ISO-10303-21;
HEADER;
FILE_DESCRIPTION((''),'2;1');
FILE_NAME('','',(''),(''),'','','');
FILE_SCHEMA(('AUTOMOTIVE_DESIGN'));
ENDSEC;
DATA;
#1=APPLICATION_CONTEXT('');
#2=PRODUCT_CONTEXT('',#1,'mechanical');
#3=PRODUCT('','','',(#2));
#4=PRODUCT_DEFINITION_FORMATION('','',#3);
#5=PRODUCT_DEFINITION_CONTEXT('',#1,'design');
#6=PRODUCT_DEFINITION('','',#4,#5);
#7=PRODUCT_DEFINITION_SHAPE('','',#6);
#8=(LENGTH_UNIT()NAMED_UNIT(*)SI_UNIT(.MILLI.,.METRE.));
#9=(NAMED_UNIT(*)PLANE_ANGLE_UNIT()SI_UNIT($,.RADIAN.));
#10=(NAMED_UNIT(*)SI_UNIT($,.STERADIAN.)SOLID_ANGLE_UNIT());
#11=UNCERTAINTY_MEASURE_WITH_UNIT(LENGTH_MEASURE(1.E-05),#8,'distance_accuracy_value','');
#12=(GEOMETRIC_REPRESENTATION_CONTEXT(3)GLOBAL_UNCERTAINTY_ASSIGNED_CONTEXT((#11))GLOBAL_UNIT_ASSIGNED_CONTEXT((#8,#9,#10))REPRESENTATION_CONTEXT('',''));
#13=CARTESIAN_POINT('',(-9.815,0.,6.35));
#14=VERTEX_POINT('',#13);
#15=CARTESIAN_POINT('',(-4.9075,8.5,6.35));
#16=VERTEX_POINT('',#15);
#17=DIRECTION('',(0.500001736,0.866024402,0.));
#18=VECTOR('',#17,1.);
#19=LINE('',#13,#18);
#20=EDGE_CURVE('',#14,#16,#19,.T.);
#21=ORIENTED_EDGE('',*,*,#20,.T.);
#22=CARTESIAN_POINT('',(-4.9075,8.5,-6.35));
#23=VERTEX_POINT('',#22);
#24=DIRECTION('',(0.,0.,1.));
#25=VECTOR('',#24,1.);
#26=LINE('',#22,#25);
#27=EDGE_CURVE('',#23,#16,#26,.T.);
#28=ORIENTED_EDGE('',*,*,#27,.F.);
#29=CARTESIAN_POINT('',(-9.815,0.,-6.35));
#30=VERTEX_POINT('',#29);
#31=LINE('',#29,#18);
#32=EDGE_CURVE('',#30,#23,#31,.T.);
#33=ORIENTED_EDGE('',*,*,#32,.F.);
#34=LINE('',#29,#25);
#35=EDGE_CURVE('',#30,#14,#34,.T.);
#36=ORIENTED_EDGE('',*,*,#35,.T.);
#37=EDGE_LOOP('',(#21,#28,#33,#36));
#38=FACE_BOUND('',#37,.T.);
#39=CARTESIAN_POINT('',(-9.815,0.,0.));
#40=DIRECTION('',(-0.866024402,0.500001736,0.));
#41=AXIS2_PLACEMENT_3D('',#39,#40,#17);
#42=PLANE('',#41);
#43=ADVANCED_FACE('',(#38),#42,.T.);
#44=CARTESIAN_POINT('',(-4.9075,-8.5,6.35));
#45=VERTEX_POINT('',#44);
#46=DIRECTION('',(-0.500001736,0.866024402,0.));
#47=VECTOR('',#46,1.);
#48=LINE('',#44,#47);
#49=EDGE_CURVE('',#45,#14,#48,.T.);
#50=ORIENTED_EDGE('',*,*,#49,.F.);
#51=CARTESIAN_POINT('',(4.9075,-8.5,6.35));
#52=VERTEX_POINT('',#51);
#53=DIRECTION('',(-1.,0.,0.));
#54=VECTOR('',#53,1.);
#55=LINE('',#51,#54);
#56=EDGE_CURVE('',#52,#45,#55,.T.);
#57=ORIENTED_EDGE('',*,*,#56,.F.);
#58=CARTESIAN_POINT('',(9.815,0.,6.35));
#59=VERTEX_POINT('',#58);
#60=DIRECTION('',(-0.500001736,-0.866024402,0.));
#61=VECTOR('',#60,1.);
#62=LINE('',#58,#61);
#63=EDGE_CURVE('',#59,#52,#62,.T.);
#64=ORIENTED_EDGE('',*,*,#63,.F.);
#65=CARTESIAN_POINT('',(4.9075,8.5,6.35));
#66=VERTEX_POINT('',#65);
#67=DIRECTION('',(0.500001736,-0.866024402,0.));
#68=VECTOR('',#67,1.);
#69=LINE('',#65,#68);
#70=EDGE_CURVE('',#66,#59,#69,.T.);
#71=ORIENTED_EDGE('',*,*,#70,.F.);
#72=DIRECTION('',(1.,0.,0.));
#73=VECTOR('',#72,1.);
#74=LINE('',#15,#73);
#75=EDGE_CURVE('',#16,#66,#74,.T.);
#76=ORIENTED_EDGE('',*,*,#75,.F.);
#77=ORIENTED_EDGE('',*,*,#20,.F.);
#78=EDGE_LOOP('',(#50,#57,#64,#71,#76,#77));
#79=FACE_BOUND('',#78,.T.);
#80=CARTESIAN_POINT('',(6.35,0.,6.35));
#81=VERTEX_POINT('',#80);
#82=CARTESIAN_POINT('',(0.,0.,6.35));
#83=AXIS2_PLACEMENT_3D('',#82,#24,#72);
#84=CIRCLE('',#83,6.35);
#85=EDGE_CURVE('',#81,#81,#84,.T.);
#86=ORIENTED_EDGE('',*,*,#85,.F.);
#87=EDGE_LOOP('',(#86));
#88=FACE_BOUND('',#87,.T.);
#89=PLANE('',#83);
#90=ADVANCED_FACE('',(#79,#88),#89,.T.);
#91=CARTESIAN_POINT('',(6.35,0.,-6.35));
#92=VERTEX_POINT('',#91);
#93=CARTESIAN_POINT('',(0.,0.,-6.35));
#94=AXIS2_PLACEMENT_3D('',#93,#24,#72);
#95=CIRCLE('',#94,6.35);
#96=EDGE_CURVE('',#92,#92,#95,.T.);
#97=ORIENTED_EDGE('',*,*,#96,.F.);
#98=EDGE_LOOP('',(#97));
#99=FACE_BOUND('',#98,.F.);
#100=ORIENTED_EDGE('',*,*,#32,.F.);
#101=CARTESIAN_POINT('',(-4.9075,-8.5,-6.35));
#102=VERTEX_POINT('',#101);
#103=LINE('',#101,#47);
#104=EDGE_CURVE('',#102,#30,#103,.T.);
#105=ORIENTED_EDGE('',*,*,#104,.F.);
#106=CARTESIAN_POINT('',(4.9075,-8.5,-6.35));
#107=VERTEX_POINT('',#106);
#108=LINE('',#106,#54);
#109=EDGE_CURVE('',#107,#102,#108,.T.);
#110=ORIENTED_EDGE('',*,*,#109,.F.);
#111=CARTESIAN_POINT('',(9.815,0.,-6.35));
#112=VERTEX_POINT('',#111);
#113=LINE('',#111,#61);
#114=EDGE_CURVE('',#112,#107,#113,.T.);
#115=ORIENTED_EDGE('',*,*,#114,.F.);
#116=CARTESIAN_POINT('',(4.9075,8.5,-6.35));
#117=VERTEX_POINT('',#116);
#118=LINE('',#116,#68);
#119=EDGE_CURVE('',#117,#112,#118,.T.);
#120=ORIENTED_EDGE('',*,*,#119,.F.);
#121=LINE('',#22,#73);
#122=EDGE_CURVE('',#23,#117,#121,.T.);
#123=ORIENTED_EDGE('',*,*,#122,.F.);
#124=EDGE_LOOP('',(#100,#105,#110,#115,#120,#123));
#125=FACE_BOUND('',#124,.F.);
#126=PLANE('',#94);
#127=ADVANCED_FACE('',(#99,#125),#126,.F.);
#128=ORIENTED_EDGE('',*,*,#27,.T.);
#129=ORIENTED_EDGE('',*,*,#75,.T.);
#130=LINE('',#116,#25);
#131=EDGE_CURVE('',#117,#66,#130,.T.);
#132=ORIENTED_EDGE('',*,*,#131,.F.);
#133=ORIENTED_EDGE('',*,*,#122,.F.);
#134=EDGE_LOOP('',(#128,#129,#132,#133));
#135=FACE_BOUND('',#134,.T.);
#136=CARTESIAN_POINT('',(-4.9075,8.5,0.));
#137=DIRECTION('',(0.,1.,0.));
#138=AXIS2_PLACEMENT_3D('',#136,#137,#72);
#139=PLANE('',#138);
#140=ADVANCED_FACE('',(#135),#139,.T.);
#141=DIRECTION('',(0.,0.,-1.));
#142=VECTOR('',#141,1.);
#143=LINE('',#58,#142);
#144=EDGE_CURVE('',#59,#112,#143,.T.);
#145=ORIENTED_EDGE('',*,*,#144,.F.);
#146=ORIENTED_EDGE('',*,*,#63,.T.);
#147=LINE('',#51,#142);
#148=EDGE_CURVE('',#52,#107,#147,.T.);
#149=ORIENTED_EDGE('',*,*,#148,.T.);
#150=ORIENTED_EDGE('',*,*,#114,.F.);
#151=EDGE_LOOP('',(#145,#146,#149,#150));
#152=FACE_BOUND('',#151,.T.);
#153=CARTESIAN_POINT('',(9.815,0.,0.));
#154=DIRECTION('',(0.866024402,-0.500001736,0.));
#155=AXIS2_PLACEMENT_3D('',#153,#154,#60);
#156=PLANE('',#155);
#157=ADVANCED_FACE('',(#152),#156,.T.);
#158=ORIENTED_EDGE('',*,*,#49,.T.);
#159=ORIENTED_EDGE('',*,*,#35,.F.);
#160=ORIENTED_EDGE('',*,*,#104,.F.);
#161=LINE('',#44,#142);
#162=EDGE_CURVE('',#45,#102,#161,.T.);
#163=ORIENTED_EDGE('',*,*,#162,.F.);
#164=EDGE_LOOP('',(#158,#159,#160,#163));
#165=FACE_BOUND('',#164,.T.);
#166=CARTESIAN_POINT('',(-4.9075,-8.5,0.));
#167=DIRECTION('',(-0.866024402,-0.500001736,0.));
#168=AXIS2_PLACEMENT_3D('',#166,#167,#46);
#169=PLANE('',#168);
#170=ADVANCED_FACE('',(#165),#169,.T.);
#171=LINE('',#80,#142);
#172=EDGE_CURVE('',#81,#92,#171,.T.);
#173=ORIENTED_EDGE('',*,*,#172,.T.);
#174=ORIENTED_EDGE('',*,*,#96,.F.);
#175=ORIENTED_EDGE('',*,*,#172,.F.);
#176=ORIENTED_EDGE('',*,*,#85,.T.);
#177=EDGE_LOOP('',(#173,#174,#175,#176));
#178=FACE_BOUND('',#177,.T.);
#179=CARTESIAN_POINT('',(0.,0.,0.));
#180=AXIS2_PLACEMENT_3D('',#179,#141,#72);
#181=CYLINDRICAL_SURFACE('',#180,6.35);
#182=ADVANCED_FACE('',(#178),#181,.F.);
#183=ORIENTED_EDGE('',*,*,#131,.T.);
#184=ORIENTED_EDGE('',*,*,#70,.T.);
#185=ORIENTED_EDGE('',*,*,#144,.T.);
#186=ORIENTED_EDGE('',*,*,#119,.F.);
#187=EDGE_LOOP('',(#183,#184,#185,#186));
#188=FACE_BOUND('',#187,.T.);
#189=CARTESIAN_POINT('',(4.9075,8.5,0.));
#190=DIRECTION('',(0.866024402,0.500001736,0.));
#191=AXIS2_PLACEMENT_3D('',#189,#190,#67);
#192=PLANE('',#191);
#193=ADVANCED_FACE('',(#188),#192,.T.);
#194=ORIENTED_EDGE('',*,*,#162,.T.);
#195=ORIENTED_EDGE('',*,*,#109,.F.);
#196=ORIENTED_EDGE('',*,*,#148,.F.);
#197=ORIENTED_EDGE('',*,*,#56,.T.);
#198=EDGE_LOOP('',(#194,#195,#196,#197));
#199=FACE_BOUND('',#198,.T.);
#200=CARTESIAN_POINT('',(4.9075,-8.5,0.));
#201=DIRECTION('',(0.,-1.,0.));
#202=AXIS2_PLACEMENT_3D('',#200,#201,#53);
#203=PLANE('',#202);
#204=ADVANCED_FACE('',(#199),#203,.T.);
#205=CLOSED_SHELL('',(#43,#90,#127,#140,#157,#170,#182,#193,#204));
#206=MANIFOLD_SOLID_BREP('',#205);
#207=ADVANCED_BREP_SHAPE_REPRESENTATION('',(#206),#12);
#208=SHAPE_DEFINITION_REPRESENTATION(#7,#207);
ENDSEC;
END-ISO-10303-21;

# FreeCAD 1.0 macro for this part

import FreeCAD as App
import Part
import Sketcher

V = App.Vector
Q = App.Units.Quantity

doc = App.newDocument("Part")
body = doc.addObject("PartDesign::Body", "Body")

# Sketch on XY plane
sketch1 = body.newObject("Sketcher::SketchObject", "Sketch")
sketch1.AttachmentSupport = (doc.getObject("XY_Plane"), [""])
sketch1.MapMode = "FlatFace"
sketch1.addGeometry([
    Part.LineSegment(V(10, 0, 0), V(5, 8, 0)),  # 0
    Part.LineSegment(V(5, 8, 0), V(-5, 8, 0)),  # 1
    Part.LineSegment(V(-5, 8, 0), V(-10, 0, 0)),  # 2
    Part.LineSegment(V(-10, 0, 0), V(-5, -8, 0)),  # 3
    Part.LineSegment(V(-5, -8, 0), V(5, -8, 0)),  # 4
    Part.LineSegment(V(5, -8, 0), V(10, 0, 0)),  # 5
    Part.Circle(V(0, 0, 0), V(0, 0, 1), 6),  # 6
], False)
sketch1.addConstraint([
    Sketcher.Constraint("Coincident", 0, 2, 1, 1),
    Sketcher.Constraint("Coincident", 1, 2, 2, 1),
    Sketcher.Constraint("Coincident", 2, 2, 3, 1),
    Sketcher.Constraint("Coincident", 3, 2, 4, 1),
    Sketcher.Constraint("Coincident", 4, 2, 5, 1),
    Sketcher.Constraint("Coincident", 5, 2, 0, 1),
    Sketcher.Constraint("Horizontal", 1),
    Sketcher.Constraint("Horizontal", 4),
    Sketcher.Constraint("Coincident", 6, 3, -1, 1),
    Sketcher.Constraint("Symmetric", 0, 2, 3, 2, -1, 1),
    Sketcher.Constraint("Symmetric", 2, 2, 5, 2, -1, 1),
    Sketcher.Constraint("PointOnObject", 2, 2, -1),
    Sketcher.Constraint("Parallel", 2, 5),
    Sketcher.Constraint("Vertical", 1, 2, 3, 2),
    Sketcher.Constraint("Diameter", 6, Q("0.5 in")),
    Sketcher.Constraint("Angle", 0, Q("120 deg")),
    Sketcher.Constraint("DistanceY", 3, 2, 1, 2, Q("0.6693 in")),
    Sketcher.Constraint("DistanceX", 1, 2, 1, 1, Q("9.815 mm")),
])
pad1 = body.newObject("PartDesign::Pad", "Pad")
pad1.Profile = sketch1
pad1.Length = Q("0.5 in")
pad1.Midplane = True

doc.recompute()
